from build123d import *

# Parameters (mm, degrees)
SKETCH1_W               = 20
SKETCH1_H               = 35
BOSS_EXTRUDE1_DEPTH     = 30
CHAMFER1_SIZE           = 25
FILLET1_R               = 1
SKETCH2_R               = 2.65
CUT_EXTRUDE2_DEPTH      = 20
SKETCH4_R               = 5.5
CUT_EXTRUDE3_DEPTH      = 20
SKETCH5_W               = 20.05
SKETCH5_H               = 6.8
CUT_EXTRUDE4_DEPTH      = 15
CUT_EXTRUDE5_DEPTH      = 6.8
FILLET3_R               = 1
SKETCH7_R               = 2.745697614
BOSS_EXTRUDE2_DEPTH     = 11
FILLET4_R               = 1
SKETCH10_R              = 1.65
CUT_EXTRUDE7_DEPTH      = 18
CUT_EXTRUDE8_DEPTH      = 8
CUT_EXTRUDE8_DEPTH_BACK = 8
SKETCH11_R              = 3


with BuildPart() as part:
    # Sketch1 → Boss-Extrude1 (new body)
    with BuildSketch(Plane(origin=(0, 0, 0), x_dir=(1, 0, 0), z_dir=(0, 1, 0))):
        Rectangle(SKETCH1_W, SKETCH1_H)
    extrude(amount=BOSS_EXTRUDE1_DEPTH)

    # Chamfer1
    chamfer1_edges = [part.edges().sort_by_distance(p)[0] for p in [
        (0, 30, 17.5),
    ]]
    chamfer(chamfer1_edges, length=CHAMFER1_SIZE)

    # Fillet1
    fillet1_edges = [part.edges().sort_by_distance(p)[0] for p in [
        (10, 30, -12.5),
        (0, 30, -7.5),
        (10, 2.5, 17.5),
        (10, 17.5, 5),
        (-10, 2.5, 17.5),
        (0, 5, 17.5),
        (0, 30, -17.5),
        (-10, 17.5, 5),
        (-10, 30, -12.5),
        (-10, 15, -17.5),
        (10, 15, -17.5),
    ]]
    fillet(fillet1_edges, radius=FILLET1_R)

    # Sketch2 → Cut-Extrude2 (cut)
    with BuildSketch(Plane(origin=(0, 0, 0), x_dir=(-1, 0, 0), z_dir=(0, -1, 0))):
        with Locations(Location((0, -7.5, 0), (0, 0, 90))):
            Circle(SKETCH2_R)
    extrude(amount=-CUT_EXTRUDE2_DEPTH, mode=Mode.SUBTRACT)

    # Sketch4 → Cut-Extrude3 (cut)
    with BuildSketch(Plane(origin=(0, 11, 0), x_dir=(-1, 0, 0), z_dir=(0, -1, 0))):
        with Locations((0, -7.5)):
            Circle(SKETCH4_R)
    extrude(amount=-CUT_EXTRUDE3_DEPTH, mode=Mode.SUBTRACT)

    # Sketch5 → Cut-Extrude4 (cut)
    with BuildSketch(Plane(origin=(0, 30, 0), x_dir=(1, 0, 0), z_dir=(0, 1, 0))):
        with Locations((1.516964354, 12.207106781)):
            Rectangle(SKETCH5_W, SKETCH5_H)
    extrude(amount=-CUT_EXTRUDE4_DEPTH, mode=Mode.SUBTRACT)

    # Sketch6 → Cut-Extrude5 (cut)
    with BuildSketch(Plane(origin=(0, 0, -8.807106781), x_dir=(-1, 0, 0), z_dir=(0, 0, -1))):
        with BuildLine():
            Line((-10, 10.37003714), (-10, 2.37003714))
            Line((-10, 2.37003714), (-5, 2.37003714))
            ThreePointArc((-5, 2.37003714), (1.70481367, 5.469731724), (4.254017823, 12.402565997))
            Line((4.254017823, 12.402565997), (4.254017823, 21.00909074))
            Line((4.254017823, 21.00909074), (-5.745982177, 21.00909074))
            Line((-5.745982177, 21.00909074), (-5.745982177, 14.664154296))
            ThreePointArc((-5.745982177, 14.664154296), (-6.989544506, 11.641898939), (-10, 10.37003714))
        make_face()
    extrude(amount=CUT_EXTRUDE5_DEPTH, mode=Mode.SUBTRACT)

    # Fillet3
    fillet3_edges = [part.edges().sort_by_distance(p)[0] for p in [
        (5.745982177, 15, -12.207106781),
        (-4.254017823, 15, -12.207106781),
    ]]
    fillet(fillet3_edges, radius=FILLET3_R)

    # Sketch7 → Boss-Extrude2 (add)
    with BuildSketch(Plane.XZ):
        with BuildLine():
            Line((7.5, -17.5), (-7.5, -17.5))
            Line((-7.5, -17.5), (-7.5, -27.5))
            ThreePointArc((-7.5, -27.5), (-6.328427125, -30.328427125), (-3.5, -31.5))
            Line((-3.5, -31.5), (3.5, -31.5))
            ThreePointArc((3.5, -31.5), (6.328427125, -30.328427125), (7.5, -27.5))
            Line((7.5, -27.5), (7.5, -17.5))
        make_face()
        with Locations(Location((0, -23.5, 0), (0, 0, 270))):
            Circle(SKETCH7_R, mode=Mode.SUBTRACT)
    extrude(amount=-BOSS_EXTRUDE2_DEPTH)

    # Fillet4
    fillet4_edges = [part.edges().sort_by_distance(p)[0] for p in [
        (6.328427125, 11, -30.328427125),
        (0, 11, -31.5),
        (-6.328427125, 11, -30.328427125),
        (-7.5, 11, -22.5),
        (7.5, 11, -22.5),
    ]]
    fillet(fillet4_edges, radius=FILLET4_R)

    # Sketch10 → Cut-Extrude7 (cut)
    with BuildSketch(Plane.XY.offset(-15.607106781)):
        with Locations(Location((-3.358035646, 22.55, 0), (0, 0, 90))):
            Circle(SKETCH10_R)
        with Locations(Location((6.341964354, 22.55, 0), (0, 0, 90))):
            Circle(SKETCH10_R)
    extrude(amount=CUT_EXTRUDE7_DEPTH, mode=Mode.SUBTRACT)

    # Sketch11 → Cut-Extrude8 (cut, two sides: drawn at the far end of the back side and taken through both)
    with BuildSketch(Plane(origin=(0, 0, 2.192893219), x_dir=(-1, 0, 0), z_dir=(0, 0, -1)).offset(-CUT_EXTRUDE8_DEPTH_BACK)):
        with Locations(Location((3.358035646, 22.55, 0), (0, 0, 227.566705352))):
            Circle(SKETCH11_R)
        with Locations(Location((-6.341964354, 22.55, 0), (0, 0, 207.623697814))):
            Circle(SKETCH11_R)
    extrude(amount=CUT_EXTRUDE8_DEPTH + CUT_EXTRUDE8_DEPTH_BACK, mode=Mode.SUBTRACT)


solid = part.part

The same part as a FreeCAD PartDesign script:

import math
import FreeCAD as App
import Part
import Sketcher

V = App.Vector
Q = App.Units.Quantity


def edges_at(feature, points):
    """Names of the edges that pass closest to the given points."""
    edges = feature.Shape.Edges
    near = lambda p: min(range(len(edges)), key=lambda i: edges[i].distToShape(Part.Vertex(*p))[0])
    return sorted({f"Edge{near(p) + 1}" for p in points})


def add_polygon(sketch, points):
    """Adds a closed chain of lines whose ends are joined by coincident constraints."""
    first, n = sketch.GeometryCount, len(points)
    for a, b in zip(points, points[1:] + points[:1]):
        sketch.addGeometry(Part.LineSegment(App.Vector(*a, 0), App.Vector(*b, 0)), False)
    for i in range(n):
        sketch.addConstraint(Sketcher.Constraint("Coincident", first + i, 2, first + (i + 1) % n, 1))

doc = App.newDocument("Part")
params = doc.addObject("Spreadsheet::Sheet", "Params")
for row, (alias, value) in enumerate([
    ("sketch1_width", "20 mm"),
    ("sketch1_height", "35 mm"),
    ("pad1_length", "30 mm"),
    ("chamfer_size", "25 mm"),
    ("fillet_radius", "1 mm"),
    ("sketch2_diameter", "5.3 mm"),
    ("pocket1_length", "20 mm"),
    ("sketch3_diameter", "11 mm"),
    ("pocket2_length", "20 mm"),
    ("sketch4_height", "6.8 mm"),
    ("sketch4_width", "20.05 mm"),
    ("pocket3_length", "15 mm"),
    ("sketch5_width", "5 mm"),
    ("sketch5_width2", "10 mm"),
    ("sketch5_height", "8 mm"),
    ("pocket4_length", "6.8 mm"),
    ("fillet2_radius", "1 mm"),
    ("sketch6_radius", "4 mm"),
    ("sketch6_width", "15 mm"),
    ("sketch6_height", "10 mm"),
    ("pad2_length", "11 mm"),
    ("fillet3_radius", "1 mm"),
    ("sketch7_diameter", "3.3 mm"),
    ("pocket5_length", "18 mm"),
    ("sketch8_diameter", "6 mm"),
    ("pocket6_length", "8 mm"),
    ("pocket6_length2", "8 mm"),
], start=1):
    params.set(f"A{row}", alias)
    params.set(f"B{row}", "=" + value)
    params.setAlias(f"B{row}", alias)

body = doc.addObject("PartDesign::Body", "Body")

# Sketch on XZ plane
sketch1 = doc.addObject("Sketcher::SketchObject", "Sketch")
body.addObject(sketch1)
sketch1.AttachmentSupport = (doc.XZ_Plane, [""])
sketch1.MapMode = "FlatFace"
add_polygon(sketch1, [(-10, -18), (-10, 18), (10, 18), (10, -18)])  # lines 0-3
sketch1.addConstraint([
    Sketcher.Constraint("Vertical", 0),
    Sketcher.Constraint("Horizontal", 1),
    Sketcher.Constraint("Vertical", 2),
    Sketcher.Constraint("Horizontal", 3),
    Sketcher.Constraint("Symmetric", 0, 2, 2, 2, -1, 1),
    Sketcher.Constraint("DistanceX", 1, 1, 1, 2, Q("20 mm")),
    Sketcher.Constraint("DistanceY", 0, 1, 0, 2, Q("35 mm")),
])
sketch1.setExpression("Constraints[9]", "Params.sketch1_width")
sketch1.setExpression("Constraints[10]", "Params.sketch1_height")
pad1 = doc.addObject("PartDesign::Pad", "Pad")
body.addObject(pad1)
pad1.Profile = sketch1
pad1.setExpression("Length", "Params.pad1_length")
pad1.Reversed = True
doc.recompute()

chamfer = doc.addObject("PartDesign::Chamfer", "Chamfer")
body.addObject(chamfer)
chamfer.Base = (pad1, edges_at(pad1, [(0, 30, 17.5)]))
chamfer.setExpression("Size", "Params.chamfer_size")
doc.recompute()

fillet = doc.addObject("PartDesign::Fillet", "Fillet")
body.addObject(fillet)
fillet.Base = (chamfer, edges_at(chamfer, [
    (10, 30, -12.5),
    (0, 30, -7.5),
    (10, 2.5, 17.5),
    (10, 17.5, 5),
    (-10, 2.5, 17.5),
    (0, 5, 17.5),
    (0, 30, -17.5),
    (-10, 17.5, 5),
    (-10, 30, -12.5),
    (-10, 15, -17.5),
    (10, 15, -17.5),
]))
fillet.setExpression("Radius", "Params.fillet_radius")

# Sketch on XZ plane
sketch2 = doc.addObject("Sketcher::SketchObject", "Sketch001")
body.addObject(sketch2)
sketch2.AttachmentSupport = (doc.XZ_Plane, [""])
sketch2.MapMode = "FlatFace"
sketch2.addGeometry(Part.Circle(V(0, 7.5, 0), V(0, 0, 1), 2.6), False)
sketch2.addConstraint([
    Sketcher.Constraint("PointOnObject", 0, 3, -2),
    Sketcher.Constraint("Diameter", 0, Q("5.3 mm")),
    Sketcher.Constraint("DistanceY", -1, 1, 0, 3, Q("7.5 mm")),
])
sketch2.setExpression("Constraints[1]", "Params.sketch2_diameter")
pocket1 = doc.addObject("PartDesign::Pocket", "Pocket")
body.addObject(pocket1)
pocket1.Profile = sketch2
pocket1.setExpression("Length", "Params.pocket1_length")

# Sketch on XZ plane
sketch3 = doc.addObject("Sketcher::SketchObject", "Sketch002")
body.addObject(sketch3)
sketch3.AttachmentSupport = (doc.XZ_Plane, [""])
sketch3.MapMode = "FlatFace"
sketch3.AttachmentOffset = App.Placement(V(0, 0, -11), App.Rotation())
sketch3.addGeometry(Part.Circle(V(0, 8, 0), V(0, 0, 1), 6), False)
sketch3.addConstraint([
    Sketcher.Constraint("PointOnObject", 0, 3, -2),
    Sketcher.Constraint("Diameter", 0, Q("11 mm")),
    Sketcher.Constraint("DistanceY", -1, 1, 0, 3, Q("7.5 mm")),
])
sketch3.setExpression("Constraints[1]", "Params.sketch3_diameter")
pocket2 = doc.addObject("PartDesign::Pocket", "Pocket001")
body.addObject(pocket2)
pocket2.Profile = sketch3
pocket2.setExpression("Length", "Params.pocket2_length")

# Sketch on XZ plane
sketch4 = doc.addObject("Sketcher::SketchObject", "Sketch003")
body.addObject(sketch4)
sketch4.AttachmentSupport = (doc.XZ_Plane, [""])
sketch4.MapMode = "FlatFace"
sketch4.AttachmentOffset = App.Placement(V(0, 0, -30), App.Rotation())
add_polygon(sketch4, [(-9, -16), (-9, -9), (12, -9), (12, -16)])  # lines 0-3
sketch4.addConstraint([
    Sketcher.Constraint("Vertical", 0),
    Sketcher.Constraint("Horizontal", 1),
    Sketcher.Constraint("Vertical", 2),
    Sketcher.Constraint("Horizontal", 3),
    Sketcher.Constraint("DistanceY", 0, 1, 0, 2, Q("6.8 mm")),
    Sketcher.Constraint("DistanceX", 1, 1, 1, 2, Q("20.05 mm")),
    Sketcher.Constraint("DistanceX", 0, 2, -1, 1, Q("8.508036 mm")),
    Sketcher.Constraint("DistanceY", 0, 2, -1, 1, Q("8.807107 mm")),
])
sketch4.setExpression("Constraints[8]", "Params.sketch4_height")
sketch4.setExpression("Constraints[9]", "Params.sketch4_width")
pocket3 = doc.addObject("PartDesign::Pocket", "Pocket002")
body.addObject(pocket3)
pocket3.Profile = sketch4
pocket3.setExpression("Length", "Params.pocket3_length")
pocket3.Reversed = True

# Sketch on XY plane
sketch5 = doc.addObject("Sketcher::SketchObject", "Sketch004")
body.addObject(sketch5)
sketch5.AttachmentSupport = (doc.XY_Plane, [""])
sketch5.MapMode = "FlatFace"
sketch5.AttachmentOffset = App.Placement(V(0, 0, -8.807107), App.Rotation())
sketch5.addGeometry([
    Part.LineSegment(V(10, 10.4, 0), V(10, 2.4, 0)),  # 0
    Part.LineSegment(V(10, 2.4, 0), V(5, 2.4, 0)),  # 1
    Part.ArcOfCircle(Part.Circle(V(5.4, 12, 0), V(0, 0, 1), 9.7), math.radians(178), math.radians(268)),  # 2
    Part.LineSegment(V(-4.3, 12.4, 0), V(-4.3, 21, 0)),  # 3
    Part.LineSegment(V(-4.3, 21, 0), V(5.7, 21, 0)),  # 4
    Part.LineSegment(V(5.7, 21, 0), V(5.7, 14.7, 0)),  # 5
    Part.ArcOfCircle(Part.Circle(V(10, 14.7, 0), V(0, 0, 1), 4.3), math.radians(-180), math.radians(-91)),  # 6
], False)
sketch5.addConstraint([
    Sketcher.Constraint("Coincident", 0, 2, 1, 1),
    Sketcher.Constraint("Coincident", 1, 2, 2, 2),
    Sketcher.Constraint("Coincident", 2, 1, 3, 1),
    Sketcher.Constraint("Coincident", 3, 2, 4, 1),
    Sketcher.Constraint("Coincident", 4, 2, 5, 1),
    Sketcher.Constraint("Tangent", 5, 2, 6, 1),
    Sketcher.Constraint("Coincident", 6, 2, 0, 1),
    Sketcher.Constraint("Vertical", 0),
    Sketcher.Constraint("Horizontal", 1),
    Sketcher.Constraint("Vertical", 3),
    Sketcher.Constraint("Horizontal", 4),
    Sketcher.Constraint("Vertical", 5),
    Sketcher.Constraint("DistanceX", 1, 2, 1, 1, Q("5 mm")),
    Sketcher.Constraint("DistanceX", 4, 1, 4, 2, Q("10 mm")),
    Sketcher.Constraint("DistanceY", 0, 2, 0, 1, Q("8 mm")),
    Sketcher.Constraint("DistanceX", -1, 1, 0, 2, Q("10 mm")),
    Sketcher.Constraint("Radius", 2, Q("9.651126 mm")),
    Sketcher.Constraint("Radius", 6, Q("4.294306 mm")),
    Sketcher.Constraint("DistanceY", 3, 1, 3, 2, Q("8.606525 mm")),
    Sketcher.Constraint("DistanceY", 5, 2, 5, 1, Q("6.344936 mm")),
    Sketcher.Constraint("DistanceY", -1, 1, 2, 3, Q("12.01331 mm")),
    Sketcher.Constraint("DistanceX", -1, 1, 6, 3, Q("10.040288 mm")),
])
sketch5.setExpression("Constraints[12]", "Params.sketch5_width")
sketch5.setExpression("Constraints[13]", "Params.sketch5_width2")
sketch5.setExpression("Constraints[14]", "Params.sketch5_height")
pocket4 = doc.addObject("PartDesign::Pocket", "Pocket003")
body.addObject(pocket4)
pocket4.Profile = sketch5
pocket4.setExpression("Length", "Params.pocket4_length")
doc.recompute()

fillet2 = doc.addObject("PartDesign::Fillet", "Fillet001")
body.addObject(fillet2)
fillet2.Base = (pocket4, edges_at(pocket4, [(5.746, 15, -12.207), (-4.254, 15, -12.207)]))
fillet2.setExpression("Radius", "Params.fillet2_radius")

# Sketch on XZ plane
sketch6 = doc.addObject("Sketcher::SketchObject", "Sketch005")
body.addObject(sketch6)
sketch6.AttachmentSupport = (doc.XZ_Plane, [""])
sketch6.MapMode = "FlatFace"
sketch6.addGeometry([
    Part.LineSegment(V(7.5, -17.5, 0), V(-7.5, -17.5, 0)),  # 0
    Part.LineSegment(V(-7.5, -17.5, 0), V(-7.5, -27.5, 0)),  # 1
    Part.ArcOfCircle(Part.Circle(V(-3.5, -27.5, 0), V(0, 0, 1), 4), math.radians(180), math.radians(270)),  # 2
    Part.LineSegment(V(-3.5, -31.5, 0), V(3.5, -31.5, 0)),  # 3
    Part.ArcOfCircle(Part.Circle(V(3.5, -27.5, 0), V(0, 0, 1), 4), math.radians(-90), math.radians(0)),  # 4
    Part.LineSegment(V(7.5, -27.5, 0), V(7.5, -17.5, 0)),  # 5
    Part.Circle(V(0, -23.5, 0), V(0, 0, 1), 2.7),  # 6
], False)
sketch6.addConstraint([
    Sketcher.Constraint("Coincident", 0, 2, 1, 1),
    Sketcher.Constraint("Tangent", 1, 2, 2, 1),
    Sketcher.Constraint("Tangent", 2, 2, 3, 1),
    Sketcher.Constraint("Tangent", 3, 2, 4, 1),
    Sketcher.Constraint("Tangent", 4, 2, 5, 1),
    Sketcher.Constraint("Coincident", 5, 2, 0, 1),
    Sketcher.Constraint("Horizontal", 0),
    Sketcher.Constraint("Vertical", 1),
    Sketcher.Constraint("Horizontal", 3),
    Sketcher.Constraint("Vertical", 5),
    Sketcher.Constraint("Equal", 2, 4),
    Sketcher.Constraint("PointOnObject", 6, 3, -2),
    Sketcher.Constraint("Radius", 2, Q("4 mm")),
    Sketcher.Constraint("DistanceX", 0, 2, 0, 1, Q("15 mm")),
    Sketcher.Constraint("DistanceY", 1, 2, 1, 1, Q("10 mm")),
    Sketcher.Constraint("DistanceY", 2, 3, 6, 3, Q("4 mm")),
    Sketcher.Constraint("DistanceX", 2, 3, -1, 1, Q("3.5 mm")),
    Sketcher.Constraint("DistanceY", 2, 3, -1, 1, Q("27.5 mm")),
    Sketcher.Constraint("Diameter", 6, Q("5.491395 mm")),
])
sketch6.setExpression("Constraints[12]", "Params.sketch6_radius")
sketch6.setExpression("Constraints[13]", "Params.sketch6_width")
sketch6.setExpression("Constraints[14]", "Params.sketch6_height")
pad2 = doc.addObject("PartDesign::Pad", "Pad001")
body.addObject(pad2)
pad2.Profile = sketch6
pad2.setExpression("Length", "Params.pad2_length")
pad2.Reversed = True
doc.recompute()

fillet3 = doc.addObject("PartDesign::Fillet", "Fillet002")
body.addObject(fillet3)
fillet3.Base = (pad2, edges_at(pad2, [
    (6.328, 11, -30.328),
    (0, 11, -31.5),
    (-6.328, 11, -30.328),
    (-7.5, 11, -22.5),
    (7.5, 11, -22.5),
]))
fillet3.setExpression("Radius", "Params.fillet3_radius")

# Sketch on XY plane
sketch7 = doc.addObject("Sketcher::SketchObject", "Sketch006")
body.addObject(sketch7)
sketch7.AttachmentSupport = (doc.XY_Plane, [""])
sketch7.MapMode = "FlatFace"
sketch7.AttachmentOffset = App.Placement(V(0, 0, -15.607107), App.Rotation())
sketch7.addGeometry([
    Part.Circle(V(-3.4, 22.6, 0), V(0, 0, 1), 1.6),
    Part.Circle(V(6.3, 22.6, 0), V(0, 0, 1), 1.6),
], False)
sketch7.addConstraint([
    Sketcher.Constraint("Equal", 0, 1),
    Sketcher.Constraint("Horizontal", 0, 3, 1, 3),
    Sketcher.Constraint("Diameter", 0, Q("3.3 mm")),
    Sketcher.Constraint("DistanceX", 0, 3, 1, 3, Q("9.7 mm")),
    Sketcher.Constraint("DistanceY", -1, 1, 0, 3, Q("22.55 mm")),
    Sketcher.Constraint("DistanceX", 0, 3, -1, 1, Q("3.358036 mm")),
])
sketch7.setExpression("Constraints[2]", "Params.sketch7_diameter")
pocket5 = doc.addObject("PartDesign::Pocket", "Pocket004")
body.addObject(pocket5)
pocket5.Profile = sketch7
pocket5.setExpression("Length", "Params.pocket5_length")
pocket5.Reversed = True

# Sketch on XY plane
sketch8 = doc.addObject("Sketcher::SketchObject", "Sketch007")
body.addObject(sketch8)
sketch8.AttachmentSupport = (doc.XY_Plane, [""])
sketch8.MapMode = "FlatFace"
sketch8.AttachmentOffset = App.Placement(V(0, 0, 2.192893), App.Rotation())
sketch8.addGeometry([
    Part.Circle(V(-3.4, 22.6, 0), V(0, 0, 1), 3),
    Part.Circle(V(6.3, 22.6, 0), V(0, 0, 1), 3),
], False)
sketch8.addConstraint([
    Sketcher.Constraint("Equal", 0, 1),
    Sketcher.Constraint("Horizontal", 0, 3, 1, 3),
    Sketcher.Constraint("Diameter", 0, Q("6 mm")),
    Sketcher.Constraint("DistanceX", 0, 3, 1, 3, Q("9.7 mm")),
    Sketcher.Constraint("DistanceY", -1, 1, 0, 3, Q("22.55 mm")),
    Sketcher.Constraint("DistanceX", 0, 3, -1, 1, Q("3.358036 mm")),
])
sketch8.setExpression("Constraints[2]", "Params.sketch8_diameter")
pocket6 = doc.addObject("PartDesign::Pocket", "Pocket005")
body.addObject(pocket6)
pocket6.Profile = sketch8
pocket6.Type = "TwoLengths"
pocket6.setExpression("Length", "Params.pocket6_length")
pocket6.setExpression("Length2", "Params.pocket6_length2")

doc.recompute()
